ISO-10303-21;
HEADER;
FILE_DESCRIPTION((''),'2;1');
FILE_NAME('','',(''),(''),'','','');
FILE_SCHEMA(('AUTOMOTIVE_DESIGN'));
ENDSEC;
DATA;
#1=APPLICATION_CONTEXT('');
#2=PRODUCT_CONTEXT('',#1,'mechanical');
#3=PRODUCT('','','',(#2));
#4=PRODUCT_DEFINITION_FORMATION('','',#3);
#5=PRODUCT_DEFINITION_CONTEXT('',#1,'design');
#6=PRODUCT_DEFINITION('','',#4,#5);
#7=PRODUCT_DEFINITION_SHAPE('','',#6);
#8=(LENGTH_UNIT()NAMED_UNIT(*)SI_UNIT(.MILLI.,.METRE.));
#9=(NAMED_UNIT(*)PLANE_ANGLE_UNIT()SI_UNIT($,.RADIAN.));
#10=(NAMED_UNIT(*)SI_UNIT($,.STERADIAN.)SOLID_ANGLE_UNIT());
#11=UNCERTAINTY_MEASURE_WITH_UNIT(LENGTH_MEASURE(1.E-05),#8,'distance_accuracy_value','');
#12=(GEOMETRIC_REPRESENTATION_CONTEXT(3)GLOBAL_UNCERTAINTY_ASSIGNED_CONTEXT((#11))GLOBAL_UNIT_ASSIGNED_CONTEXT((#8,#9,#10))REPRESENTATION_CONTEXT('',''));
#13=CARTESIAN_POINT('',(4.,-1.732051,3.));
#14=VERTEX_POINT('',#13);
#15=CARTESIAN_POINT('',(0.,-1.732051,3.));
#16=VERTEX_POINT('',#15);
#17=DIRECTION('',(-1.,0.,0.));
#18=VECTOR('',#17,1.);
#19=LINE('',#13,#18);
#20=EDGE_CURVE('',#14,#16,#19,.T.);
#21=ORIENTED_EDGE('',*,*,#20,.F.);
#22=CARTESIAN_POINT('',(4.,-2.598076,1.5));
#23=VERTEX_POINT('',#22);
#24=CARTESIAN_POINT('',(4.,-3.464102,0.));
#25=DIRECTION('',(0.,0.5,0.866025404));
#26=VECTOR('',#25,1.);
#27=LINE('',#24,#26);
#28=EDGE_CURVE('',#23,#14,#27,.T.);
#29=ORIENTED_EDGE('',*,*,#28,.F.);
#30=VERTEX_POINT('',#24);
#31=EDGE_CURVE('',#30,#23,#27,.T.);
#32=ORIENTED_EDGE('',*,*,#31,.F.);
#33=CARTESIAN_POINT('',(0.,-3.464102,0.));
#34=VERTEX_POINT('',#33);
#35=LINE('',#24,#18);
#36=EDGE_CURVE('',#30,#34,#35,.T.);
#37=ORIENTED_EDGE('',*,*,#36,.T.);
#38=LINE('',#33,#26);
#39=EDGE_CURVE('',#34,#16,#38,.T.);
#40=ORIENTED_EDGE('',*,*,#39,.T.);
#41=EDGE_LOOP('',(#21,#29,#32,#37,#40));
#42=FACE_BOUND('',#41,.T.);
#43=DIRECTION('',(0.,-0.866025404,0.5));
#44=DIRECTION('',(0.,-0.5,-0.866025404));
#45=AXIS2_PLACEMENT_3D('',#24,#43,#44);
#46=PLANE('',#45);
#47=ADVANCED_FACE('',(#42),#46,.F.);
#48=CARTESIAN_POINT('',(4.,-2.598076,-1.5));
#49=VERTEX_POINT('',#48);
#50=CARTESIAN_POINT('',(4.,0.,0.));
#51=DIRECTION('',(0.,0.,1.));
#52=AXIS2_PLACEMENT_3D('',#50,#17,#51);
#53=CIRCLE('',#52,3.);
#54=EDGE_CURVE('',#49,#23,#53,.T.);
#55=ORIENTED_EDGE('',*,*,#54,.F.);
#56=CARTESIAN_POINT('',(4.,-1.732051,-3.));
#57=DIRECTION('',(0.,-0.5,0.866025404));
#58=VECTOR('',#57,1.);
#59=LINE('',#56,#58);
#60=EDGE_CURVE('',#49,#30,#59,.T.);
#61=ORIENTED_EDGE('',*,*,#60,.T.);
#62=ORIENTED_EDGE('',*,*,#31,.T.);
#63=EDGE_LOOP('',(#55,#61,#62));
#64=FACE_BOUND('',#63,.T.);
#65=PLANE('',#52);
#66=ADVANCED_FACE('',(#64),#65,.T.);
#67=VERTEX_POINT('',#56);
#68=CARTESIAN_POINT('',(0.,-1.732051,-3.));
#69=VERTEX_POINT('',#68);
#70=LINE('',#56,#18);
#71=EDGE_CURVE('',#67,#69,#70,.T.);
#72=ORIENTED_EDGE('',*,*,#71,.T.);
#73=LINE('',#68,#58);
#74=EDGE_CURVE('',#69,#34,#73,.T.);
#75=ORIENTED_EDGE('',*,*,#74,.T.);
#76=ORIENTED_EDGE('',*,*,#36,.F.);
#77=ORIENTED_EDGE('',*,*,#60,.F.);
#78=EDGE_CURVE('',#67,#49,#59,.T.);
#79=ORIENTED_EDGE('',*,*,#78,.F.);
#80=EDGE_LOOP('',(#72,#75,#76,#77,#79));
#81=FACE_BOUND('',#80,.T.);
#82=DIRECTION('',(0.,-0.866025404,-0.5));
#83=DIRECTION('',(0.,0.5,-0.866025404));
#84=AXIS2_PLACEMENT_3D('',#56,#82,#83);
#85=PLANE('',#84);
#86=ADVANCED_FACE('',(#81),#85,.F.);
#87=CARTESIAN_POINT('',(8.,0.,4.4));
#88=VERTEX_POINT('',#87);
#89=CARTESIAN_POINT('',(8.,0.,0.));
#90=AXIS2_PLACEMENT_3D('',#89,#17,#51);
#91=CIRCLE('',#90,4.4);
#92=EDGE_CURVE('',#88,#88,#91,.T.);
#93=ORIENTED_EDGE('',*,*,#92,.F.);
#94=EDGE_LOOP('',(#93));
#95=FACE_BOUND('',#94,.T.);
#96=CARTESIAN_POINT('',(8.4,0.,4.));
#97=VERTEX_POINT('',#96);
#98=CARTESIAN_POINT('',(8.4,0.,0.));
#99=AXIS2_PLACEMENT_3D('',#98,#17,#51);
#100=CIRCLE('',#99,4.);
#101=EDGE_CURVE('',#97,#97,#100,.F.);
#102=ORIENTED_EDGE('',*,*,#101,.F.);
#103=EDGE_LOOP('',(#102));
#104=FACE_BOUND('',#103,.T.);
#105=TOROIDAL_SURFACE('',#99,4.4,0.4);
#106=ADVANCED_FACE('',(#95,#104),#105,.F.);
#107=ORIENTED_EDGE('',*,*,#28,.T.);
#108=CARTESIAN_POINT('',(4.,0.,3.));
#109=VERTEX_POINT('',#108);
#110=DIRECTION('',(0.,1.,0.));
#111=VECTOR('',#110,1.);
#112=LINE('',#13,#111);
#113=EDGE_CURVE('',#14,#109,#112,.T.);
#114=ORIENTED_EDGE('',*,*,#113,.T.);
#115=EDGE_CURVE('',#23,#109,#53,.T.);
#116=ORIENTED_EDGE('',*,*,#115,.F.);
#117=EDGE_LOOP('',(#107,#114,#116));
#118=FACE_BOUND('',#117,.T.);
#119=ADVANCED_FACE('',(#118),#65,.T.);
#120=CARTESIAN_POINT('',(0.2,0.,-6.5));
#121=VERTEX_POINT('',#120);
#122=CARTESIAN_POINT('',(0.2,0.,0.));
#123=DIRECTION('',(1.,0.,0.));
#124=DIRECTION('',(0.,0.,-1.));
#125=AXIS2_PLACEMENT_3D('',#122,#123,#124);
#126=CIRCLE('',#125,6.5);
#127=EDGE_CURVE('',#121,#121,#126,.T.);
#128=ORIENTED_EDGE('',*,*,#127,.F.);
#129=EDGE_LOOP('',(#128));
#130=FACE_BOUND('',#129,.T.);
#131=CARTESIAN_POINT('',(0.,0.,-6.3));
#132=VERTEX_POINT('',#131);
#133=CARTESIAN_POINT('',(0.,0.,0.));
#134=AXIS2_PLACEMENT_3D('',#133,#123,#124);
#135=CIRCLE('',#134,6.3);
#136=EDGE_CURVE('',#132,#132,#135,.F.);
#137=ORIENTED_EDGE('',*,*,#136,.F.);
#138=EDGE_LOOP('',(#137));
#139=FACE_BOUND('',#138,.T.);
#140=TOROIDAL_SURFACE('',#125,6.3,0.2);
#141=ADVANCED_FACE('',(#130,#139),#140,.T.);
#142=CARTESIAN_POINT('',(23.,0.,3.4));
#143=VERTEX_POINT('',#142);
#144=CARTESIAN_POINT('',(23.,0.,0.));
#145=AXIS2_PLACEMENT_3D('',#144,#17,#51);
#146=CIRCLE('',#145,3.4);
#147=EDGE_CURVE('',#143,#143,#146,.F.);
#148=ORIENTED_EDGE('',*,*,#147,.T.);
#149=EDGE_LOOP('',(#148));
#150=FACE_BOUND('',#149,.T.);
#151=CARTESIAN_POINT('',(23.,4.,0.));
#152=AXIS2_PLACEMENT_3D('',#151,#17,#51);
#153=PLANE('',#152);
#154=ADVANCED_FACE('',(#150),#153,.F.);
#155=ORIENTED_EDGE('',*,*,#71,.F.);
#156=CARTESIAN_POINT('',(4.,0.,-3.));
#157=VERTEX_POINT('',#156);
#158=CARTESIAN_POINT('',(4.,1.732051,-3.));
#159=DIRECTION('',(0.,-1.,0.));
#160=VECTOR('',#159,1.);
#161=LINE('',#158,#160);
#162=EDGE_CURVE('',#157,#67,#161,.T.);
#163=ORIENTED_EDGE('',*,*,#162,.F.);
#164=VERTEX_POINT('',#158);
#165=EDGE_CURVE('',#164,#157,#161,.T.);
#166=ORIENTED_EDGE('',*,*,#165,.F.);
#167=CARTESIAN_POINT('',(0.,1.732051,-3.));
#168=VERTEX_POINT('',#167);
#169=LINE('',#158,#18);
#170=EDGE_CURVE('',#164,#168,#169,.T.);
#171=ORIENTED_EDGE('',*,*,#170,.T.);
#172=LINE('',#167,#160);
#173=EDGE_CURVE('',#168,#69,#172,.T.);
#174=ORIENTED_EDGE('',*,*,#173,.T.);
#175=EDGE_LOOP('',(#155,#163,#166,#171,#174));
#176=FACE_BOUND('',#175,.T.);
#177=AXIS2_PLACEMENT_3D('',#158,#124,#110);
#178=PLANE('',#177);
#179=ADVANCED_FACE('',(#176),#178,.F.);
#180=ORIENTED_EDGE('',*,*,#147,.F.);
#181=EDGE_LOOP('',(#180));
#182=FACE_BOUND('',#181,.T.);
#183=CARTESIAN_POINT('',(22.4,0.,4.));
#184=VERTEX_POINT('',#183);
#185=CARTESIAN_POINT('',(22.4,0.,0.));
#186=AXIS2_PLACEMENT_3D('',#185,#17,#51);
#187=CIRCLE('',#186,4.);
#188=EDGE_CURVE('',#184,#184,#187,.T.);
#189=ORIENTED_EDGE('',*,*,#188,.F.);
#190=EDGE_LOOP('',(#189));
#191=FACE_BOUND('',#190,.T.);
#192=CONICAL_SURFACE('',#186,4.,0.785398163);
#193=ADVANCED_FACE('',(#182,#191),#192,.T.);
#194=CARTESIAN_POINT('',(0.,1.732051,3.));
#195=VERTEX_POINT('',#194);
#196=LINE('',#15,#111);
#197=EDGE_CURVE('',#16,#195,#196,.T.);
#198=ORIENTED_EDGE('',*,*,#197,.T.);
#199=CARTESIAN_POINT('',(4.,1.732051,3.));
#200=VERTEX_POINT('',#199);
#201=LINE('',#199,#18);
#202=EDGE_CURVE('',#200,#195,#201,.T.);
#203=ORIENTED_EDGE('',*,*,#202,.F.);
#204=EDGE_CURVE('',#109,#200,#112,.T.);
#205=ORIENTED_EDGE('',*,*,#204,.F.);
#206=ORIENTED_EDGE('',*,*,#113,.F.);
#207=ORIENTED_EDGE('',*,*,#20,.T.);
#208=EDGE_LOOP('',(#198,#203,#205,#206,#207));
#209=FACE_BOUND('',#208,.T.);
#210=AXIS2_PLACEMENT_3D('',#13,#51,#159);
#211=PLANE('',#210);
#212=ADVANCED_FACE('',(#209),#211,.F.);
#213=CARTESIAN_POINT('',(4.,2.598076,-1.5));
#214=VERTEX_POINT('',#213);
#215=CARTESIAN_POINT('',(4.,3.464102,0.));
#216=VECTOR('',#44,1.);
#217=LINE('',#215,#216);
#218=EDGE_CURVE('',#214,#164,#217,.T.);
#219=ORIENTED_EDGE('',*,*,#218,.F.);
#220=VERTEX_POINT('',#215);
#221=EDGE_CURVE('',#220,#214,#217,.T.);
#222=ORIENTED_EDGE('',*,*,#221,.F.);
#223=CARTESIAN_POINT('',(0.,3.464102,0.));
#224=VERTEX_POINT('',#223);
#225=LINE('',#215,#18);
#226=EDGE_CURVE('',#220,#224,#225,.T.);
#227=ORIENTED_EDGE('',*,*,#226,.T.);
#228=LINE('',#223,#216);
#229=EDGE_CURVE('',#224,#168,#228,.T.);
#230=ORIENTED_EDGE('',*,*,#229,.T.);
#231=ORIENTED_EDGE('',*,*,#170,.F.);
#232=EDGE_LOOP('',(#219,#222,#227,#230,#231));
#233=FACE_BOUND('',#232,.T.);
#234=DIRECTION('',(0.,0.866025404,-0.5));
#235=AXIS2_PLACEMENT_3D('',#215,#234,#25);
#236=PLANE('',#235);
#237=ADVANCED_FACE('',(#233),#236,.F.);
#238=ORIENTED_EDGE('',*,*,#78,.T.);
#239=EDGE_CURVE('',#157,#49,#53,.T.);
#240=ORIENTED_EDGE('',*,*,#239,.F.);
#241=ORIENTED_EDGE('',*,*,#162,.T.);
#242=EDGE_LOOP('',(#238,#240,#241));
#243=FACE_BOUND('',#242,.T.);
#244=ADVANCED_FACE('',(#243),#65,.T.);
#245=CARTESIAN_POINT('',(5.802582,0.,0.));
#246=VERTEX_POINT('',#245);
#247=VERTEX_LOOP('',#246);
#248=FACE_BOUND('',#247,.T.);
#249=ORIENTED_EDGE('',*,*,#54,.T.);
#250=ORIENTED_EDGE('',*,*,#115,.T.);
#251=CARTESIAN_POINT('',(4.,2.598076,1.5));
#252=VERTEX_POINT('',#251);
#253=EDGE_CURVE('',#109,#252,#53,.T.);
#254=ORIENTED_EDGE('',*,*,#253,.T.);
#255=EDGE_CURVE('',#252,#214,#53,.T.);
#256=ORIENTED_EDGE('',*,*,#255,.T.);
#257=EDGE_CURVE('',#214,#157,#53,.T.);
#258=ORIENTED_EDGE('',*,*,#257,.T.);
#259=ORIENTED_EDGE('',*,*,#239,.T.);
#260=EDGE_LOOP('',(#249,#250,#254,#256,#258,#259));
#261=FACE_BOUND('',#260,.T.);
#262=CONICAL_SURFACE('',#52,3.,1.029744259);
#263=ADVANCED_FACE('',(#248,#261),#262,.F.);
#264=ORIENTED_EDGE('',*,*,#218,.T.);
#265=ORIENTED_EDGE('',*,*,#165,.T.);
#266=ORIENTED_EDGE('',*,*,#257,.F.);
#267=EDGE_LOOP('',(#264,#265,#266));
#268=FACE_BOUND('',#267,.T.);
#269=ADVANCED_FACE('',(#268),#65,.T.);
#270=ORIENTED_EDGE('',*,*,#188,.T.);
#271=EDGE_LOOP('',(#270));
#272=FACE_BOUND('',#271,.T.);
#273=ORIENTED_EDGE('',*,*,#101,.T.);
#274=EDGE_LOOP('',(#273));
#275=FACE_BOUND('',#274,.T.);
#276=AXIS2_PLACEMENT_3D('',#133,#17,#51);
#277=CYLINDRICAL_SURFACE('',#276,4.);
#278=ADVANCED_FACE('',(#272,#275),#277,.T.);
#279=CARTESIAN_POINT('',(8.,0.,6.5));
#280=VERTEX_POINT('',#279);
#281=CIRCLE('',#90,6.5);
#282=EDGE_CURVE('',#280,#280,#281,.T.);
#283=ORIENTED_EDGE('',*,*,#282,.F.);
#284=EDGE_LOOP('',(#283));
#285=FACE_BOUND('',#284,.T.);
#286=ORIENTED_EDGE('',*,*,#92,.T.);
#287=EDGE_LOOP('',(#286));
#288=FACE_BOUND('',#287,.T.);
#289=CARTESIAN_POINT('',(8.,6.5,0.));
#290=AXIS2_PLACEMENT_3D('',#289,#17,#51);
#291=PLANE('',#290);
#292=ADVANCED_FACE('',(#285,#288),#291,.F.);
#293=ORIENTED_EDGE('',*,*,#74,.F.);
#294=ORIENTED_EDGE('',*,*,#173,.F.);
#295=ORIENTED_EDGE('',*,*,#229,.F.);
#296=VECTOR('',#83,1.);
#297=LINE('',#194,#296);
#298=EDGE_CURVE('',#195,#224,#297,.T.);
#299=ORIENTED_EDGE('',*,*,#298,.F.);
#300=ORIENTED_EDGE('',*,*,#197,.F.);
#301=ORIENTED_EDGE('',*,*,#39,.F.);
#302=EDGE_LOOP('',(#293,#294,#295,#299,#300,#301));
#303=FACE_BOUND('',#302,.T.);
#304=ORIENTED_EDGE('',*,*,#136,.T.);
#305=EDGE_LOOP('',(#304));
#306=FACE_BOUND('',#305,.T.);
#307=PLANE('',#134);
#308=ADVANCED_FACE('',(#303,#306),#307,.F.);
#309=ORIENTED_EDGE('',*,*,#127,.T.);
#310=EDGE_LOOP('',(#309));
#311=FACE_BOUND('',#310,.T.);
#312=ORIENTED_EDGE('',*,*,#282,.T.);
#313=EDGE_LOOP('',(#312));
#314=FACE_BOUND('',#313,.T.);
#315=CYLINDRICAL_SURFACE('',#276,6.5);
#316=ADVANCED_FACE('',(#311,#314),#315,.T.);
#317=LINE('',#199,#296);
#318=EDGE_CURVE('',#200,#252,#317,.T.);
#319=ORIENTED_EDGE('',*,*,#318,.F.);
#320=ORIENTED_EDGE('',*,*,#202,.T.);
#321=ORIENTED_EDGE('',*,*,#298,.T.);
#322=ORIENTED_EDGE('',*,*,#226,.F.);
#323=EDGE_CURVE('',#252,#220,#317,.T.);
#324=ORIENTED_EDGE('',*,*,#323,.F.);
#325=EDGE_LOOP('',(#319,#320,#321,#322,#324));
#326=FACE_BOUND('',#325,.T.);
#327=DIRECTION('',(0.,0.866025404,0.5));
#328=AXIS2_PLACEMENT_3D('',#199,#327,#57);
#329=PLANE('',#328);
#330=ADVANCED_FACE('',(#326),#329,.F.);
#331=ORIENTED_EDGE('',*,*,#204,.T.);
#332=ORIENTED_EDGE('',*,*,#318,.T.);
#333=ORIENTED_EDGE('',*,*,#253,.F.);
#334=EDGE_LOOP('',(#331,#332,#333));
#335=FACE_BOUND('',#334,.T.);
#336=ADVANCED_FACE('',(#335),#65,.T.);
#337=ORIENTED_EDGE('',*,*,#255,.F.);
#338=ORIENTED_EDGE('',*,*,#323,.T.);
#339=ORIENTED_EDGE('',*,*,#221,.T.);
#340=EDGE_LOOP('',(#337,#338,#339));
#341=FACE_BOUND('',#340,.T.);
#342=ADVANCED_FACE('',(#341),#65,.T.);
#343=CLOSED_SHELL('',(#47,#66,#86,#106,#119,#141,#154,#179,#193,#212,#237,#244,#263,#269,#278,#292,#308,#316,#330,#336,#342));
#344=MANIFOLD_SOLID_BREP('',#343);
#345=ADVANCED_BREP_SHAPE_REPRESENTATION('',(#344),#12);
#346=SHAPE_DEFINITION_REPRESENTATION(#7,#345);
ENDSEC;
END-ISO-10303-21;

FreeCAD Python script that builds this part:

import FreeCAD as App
import Part
import Sketcher
from FreeCAD import Vector
Q = App.Units.Quantity


def edges_at(feature, points):
    """Names of the edges that pass closest to the given points."""
    edges = feature.Shape.Edges
    near = lambda p: min(range(len(edges)), key=lambda i: edges[i].distToShape(Part.Vertex(*p))[0])
    return sorted({f"Edge{near(p) + 1}" for p in points})


def add_polygon(sketch, points):
    """Adds a closed chain of lines whose ends are joined by coincident constraints."""
    first, n = sketch.GeometryCount, len(points)
    for a, b in zip(points, points[1:] + points[:1]):
        sketch.addGeometry(Part.LineSegment(App.Vector(*a, 0), App.Vector(*b, 0)), False)
    for i in range(n):
        sketch.addConstraint(Sketcher.Constraint("Coincident", first + i, 2, first + (i + 1) % n, 1))

doc = App.newDocument("Part")
body = doc.addObject("PartDesign::Body", "Body")

sketch1 = doc.addObject("Sketcher::SketchObject", "Sketch")
body.addObject(sketch1)
sketch1.AttachmentSupport = (doc.XY_Plane, [""])
sketch1.MapMode = "FlatFace"
add_polygon(sketch1, [(0, 6.5), (0, 0), (23, 0), (23, 4), (8, 4), (8, 6.5)])
sketch1.addConstraint(Sketcher.Constraint("Vertical", 0))
sketch1.addConstraint(Sketcher.Constraint("Horizontal", 1))
sketch1.addConstraint(Sketcher.Constraint("Vertical", 2))
sketch1.addConstraint(Sketcher.Constraint("Horizontal", 3))
sketch1.addConstraint(Sketcher.Constraint("Vertical", 4))
sketch1.addConstraint(Sketcher.Constraint("Horizontal", 5))
sketch1.addConstraint(Sketcher.Constraint("Coincident", 0, 2, -1, 1))
sketch1.addConstraint(Sketcher.Constraint("DistanceX", 1, 1, 1, 2, Q("23 mm")))
sketch1.addConstraint(Sketcher.Constraint("DistanceX", 3, 2, 3, 1, Q("15 mm")))
sketch1.addConstraint(Sketcher.Constraint("DistanceY", 2, 1, 2, 2, Q("4 mm")))
sketch1.addConstraint(Sketcher.Constraint("DistanceY", 0, 2, 0, 1, Q("6.5 mm")))
revolution = doc.addObject("PartDesign::Revolution", "Revolution")
body.addObject(revolution)
revolution.Profile = sketch1
revolution.ReferenceAxis = (sketch1, ["H_Axis"])
revolution.Angle = 360

sketch2 = doc.addObject("Sketcher::SketchObject", "Sketch001")
body.addObject(sketch2)
sketch2.AttachmentSupport = (doc.YZ_Plane, [""])
sketch2.MapMode = "FlatFace"
sketch2.addGeometry(Part.Circle(Vector(0, 0, 0), Vector(0, 0, 1), 3), False)
sketch2.addConstraint(Sketcher.Constraint("Coincident", 0, 3, -1, 1))
sketch2.addConstraint(Sketcher.Constraint("Diameter", 0, Q("6 mm")))
doc.recompute()
hole = doc.addObject("PartDesign::Hole", "Hole")
body.addObject(hole)
hole.Profile = sketch2
hole.ThreadType = "None"
hole.Diameter = 6
hole.DepthType = "Dimension"
hole.Depth = 4
hole.DrillPoint = "Angled"
hole.DrillPointAngle = 118
hole.Reversed = True

sketch3 = doc.addObject("Sketcher::SketchObject", "Sketch002")
body.addObject(sketch3)
sketch3.AttachmentSupport = (doc.YZ_Plane, [""])
sketch3.MapMode = "FlatFace"
add_polygon(sketch3, [(1.7, 3), (3.5, 0), (1.7, -3), (-1.7, -3), (-3.5, 0), (-1.7, 3)])
sketch3.addConstraint(Sketcher.Constraint("Horizontal", 2))
sketch3.addConstraint(Sketcher.Constraint("Horizontal", 5))
sketch3.addConstraint(Sketcher.Constraint("Symmetric", 0, 2, 3, 2, -1, 1))
sketch3.addConstraint(Sketcher.Constraint("Symmetric", 1, 2, 4, 2, -1, 1))
sketch3.addConstraint(Sketcher.Constraint("PointOnObject", 0, 2, -1))
sketch3.addConstraint(Sketcher.Constraint("Parallel", 0, 3))
sketch3.addConstraint(Sketcher.Constraint("Vertical", 2, 2, 4, 2))
sketch3.addConstraint(Sketcher.Constraint("Angle", 0, Q("-60 deg")))
sketch3.addConstraint(Sketcher.Constraint("DistanceY", 1, 2, -1, 1, Q("3 mm")))
sketch3.addConstraint(Sketcher.Constraint("DistanceX", 2, 2, 2, 1, Q("3.464102 mm")))
pocket1 = doc.addObject("PartDesign::Pocket", "Pocket")
body.addObject(pocket1)
pocket1.Profile = sketch3
pocket1.Length = 4
pocket1.Reversed = True
doc.recompute()

fillet = doc.addObject("PartDesign::Fillet", "Fillet")
body.addObject(fillet)
fillet.Base = (pocket1, edges_at(pocket1, [(0, -6.5, 0)]))
fillet.Radius = 0.2
doc.recompute()

chamfer = doc.addObject("PartDesign::Chamfer", "Chamfer")
body.addObject(chamfer)
chamfer.Base = (fillet, edges_at(fillet, [(23, -4, 0)]))
chamfer.Size = 0.6
doc.recompute()

fillet2 = doc.addObject("PartDesign::Fillet", "Fillet001")
body.addObject(fillet2)
fillet2.Base = (chamfer, edges_at(chamfer, [(8, -4, 0)]))
fillet2.Radius = 0.4

doc.recompute()
